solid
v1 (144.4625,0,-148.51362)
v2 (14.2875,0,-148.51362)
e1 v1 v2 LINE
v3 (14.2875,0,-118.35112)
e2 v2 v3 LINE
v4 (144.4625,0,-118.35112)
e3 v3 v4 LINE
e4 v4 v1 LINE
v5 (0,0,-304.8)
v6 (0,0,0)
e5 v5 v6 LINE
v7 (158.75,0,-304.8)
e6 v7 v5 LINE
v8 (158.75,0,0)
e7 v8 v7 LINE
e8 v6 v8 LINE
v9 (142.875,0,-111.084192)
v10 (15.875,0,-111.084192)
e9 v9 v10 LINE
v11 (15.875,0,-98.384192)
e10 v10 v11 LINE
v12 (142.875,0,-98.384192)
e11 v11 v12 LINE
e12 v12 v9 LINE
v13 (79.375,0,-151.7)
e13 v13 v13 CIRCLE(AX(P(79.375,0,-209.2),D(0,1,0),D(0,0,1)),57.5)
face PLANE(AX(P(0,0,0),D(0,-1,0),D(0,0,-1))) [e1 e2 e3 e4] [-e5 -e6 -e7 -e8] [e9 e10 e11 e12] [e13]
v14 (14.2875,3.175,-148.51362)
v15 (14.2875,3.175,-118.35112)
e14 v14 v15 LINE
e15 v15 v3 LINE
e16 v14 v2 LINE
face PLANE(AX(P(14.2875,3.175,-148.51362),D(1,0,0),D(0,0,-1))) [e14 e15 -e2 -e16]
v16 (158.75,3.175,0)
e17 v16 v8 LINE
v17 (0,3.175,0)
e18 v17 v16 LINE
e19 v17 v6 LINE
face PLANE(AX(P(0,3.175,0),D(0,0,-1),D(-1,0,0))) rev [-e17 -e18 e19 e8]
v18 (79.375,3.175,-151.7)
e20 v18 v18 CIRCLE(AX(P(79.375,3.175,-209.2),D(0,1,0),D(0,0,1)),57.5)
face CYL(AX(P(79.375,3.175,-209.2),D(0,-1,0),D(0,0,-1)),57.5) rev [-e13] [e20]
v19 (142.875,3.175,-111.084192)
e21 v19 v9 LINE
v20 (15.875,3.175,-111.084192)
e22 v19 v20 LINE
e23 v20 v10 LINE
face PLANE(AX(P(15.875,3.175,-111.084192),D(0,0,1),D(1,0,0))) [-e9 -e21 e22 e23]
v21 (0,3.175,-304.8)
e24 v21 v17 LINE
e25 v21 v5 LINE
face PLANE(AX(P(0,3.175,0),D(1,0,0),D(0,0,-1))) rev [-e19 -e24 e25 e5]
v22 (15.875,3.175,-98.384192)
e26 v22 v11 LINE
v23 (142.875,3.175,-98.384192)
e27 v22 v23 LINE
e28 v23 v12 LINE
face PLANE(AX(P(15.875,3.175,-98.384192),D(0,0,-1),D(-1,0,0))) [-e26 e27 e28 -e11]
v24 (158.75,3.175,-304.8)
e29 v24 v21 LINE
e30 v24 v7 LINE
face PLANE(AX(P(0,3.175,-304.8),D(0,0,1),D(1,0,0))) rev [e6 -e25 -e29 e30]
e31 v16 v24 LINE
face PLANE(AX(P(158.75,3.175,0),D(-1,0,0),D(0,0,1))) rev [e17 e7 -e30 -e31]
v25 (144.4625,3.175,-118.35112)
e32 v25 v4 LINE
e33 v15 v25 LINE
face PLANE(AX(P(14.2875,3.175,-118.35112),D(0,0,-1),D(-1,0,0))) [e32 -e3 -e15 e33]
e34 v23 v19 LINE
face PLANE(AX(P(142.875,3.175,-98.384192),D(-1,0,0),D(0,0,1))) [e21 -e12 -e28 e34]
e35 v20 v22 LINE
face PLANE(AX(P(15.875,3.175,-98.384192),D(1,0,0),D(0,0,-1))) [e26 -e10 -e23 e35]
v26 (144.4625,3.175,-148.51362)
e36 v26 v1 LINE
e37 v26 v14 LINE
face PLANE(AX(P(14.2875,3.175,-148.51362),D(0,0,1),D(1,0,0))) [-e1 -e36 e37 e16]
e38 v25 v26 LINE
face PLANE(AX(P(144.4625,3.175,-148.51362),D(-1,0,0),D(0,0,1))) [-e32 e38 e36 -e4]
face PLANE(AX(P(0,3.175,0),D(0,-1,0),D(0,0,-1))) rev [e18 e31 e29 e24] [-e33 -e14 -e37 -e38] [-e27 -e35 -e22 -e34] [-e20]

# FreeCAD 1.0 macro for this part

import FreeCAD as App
import Part
import Sketcher
from FreeCAD import Vector
Q = App.Units.Quantity

doc = App.newDocument("Part")
body = doc.addObject("PartDesign::Body", "Body")

# Sketch on XZ plane
sketch1 = doc.addObject("Sketcher::SketchObject", "Sketch")
body.addObject(sketch1)
sketch1.AttachmentSupport = (doc.XZ_Plane, [""])
sketch1.MapMode = "FlatFace"
sketch1.addGeometry(Part.LineSegment(Vector(0, -304.8, 0), Vector(0, 0, 0)), False)
sketch1.addGeometry(Part.LineSegment(Vector(0, 0, 0), Vector(158.75, 0, 0)), False)
sketch1.addGeometry(Part.LineSegment(Vector(158.75, 0, 0), Vector(158.75, -304.8, 0)), False)
sketch1.addGeometry(Part.LineSegment(Vector(158.75, -304.8, 0), Vector(0, -304.8, 0)), False)
sketch1.addGeometry(Part.LineSegment(Vector(142.875, -98.384192, 0), Vector(15.875, -98.384192, 0)), False)
sketch1.addGeometry(Part.LineSegment(Vector(15.875, -98.384192, 0), Vector(15.875, -111.084192, 0)), False)
sketch1.addGeometry(Part.LineSegment(Vector(15.875, -111.084192, 0), Vector(142.875, -111.084192, 0)), False)
sketch1.addGeometry(Part.LineSegment(Vector(142.875, -111.084192, 0), Vector(142.875, -98.384192, 0)), False)
sketch1.addGeometry(Part.LineSegment(Vector(144.4625, -118.35112, 0), Vector(14.2875, -118.35112, 0)), False)
sketch1.addGeometry(Part.LineSegment(Vector(14.2875, -118.35112, 0), Vector(14.2875, -148.51362, 0)), False)
sketch1.addGeometry(Part.LineSegment(Vector(14.2875, -148.51362, 0), Vector(144.4625, -148.51362, 0)), False)
sketch1.addGeometry(Part.LineSegment(Vector(144.4625, -148.51362, 0), Vector(144.4625, -118.35112, 0)), False)
sketch1.addGeometry(Part.Circle(Vector(79.375, -209.2, 0), Vector(0, 0, 1), 57.5), False)
sketch1.addConstraint(Sketcher.Constraint("Coincident", 0, 2, 1, 1))
sketch1.addConstraint(Sketcher.Constraint("Coincident", 1, 2, 2, 1))
sketch1.addConstraint(Sketcher.Constraint("Coincident", 2, 2, 3, 1))
sketch1.addConstraint(Sketcher.Constraint("Coincident", 3, 2, 0, 1))
sketch1.addConstraint(Sketcher.Constraint("Coincident", 4, 2, 5, 1))
sketch1.addConstraint(Sketcher.Constraint("Coincident", 5, 2, 6, 1))
sketch1.addConstraint(Sketcher.Constraint("Coincident", 6, 2, 7, 1))
sketch1.addConstraint(Sketcher.Constraint("Coincident", 7, 2, 4, 1))
sketch1.addConstraint(Sketcher.Constraint("Coincident", 8, 2, 9, 1))
sketch1.addConstraint(Sketcher.Constraint("Coincident", 9, 2, 10, 1))
sketch1.addConstraint(Sketcher.Constraint("Coincident", 10, 2, 11, 1))
sketch1.addConstraint(Sketcher.Constraint("Coincident", 11, 2, 8, 1))
sketch1.addConstraint(Sketcher.Constraint("Vertical", 0))
sketch1.addConstraint(Sketcher.Constraint("Horizontal", 1))
sketch1.addConstraint(Sketcher.Constraint("Vertical", 2))
sketch1.addConstraint(Sketcher.Constraint("Horizontal", 3))
sketch1.addConstraint(Sketcher.Constraint("Horizontal", 4))
sketch1.addConstraint(Sketcher.Constraint("Vertical", 5))
sketch1.addConstraint(Sketcher.Constraint("Horizontal", 6))
sketch1.addConstraint(Sketcher.Constraint("Vertical", 7))
sketch1.addConstraint(Sketcher.Constraint("Horizontal", 8))
sketch1.addConstraint(Sketcher.Constraint("Vertical", 9))
sketch1.addConstraint(Sketcher.Constraint("Horizontal", 10))
sketch1.addConstraint(Sketcher.Constraint("Vertical", 11))
sketch1.addConstraint(Sketcher.Constraint("Coincident", 0, 2, -1, 1))
sketch1.addConstraint(Sketcher.Constraint("DistanceX", 4, 2, 4, 1, Q("5 in")))
sketch1.addConstraint(Sketcher.Constraint("DistanceY", 0, 1, 0, 2, Q("12 in")))
sketch1.addConstraint(Sketcher.Constraint("DistanceY", 5, 2, 5, 1, Q("0.5 in")))
sketch1.addConstraint(Sketcher.Constraint("DistanceX", 1, 1, 1, 2, Q("6.25 in")))
sketch1.addConstraint(Sketcher.Constraint("DistanceX", 4, 2, 12, 3, Q("2.5 in")))
sketch1.addConstraint(Sketcher.Constraint("Diameter", 12, 115.0))
sketch1.addConstraint(Sketcher.Constraint("DistanceX", 8, 2, 8, 1, Q("5.125 in")))
sketch1.addConstraint(Sketcher.Constraint("DistanceY", 9, 2, 9, 1, Q("1.1875 in")))
sketch1.addConstraint(Sketcher.Constraint("DistanceX", -1, 1, 12, 3, Q("3.125 in")))
sketch1.addConstraint(Sketcher.Constraint("DistanceX", -1, 1, 8, 2, Q("0.5625 in")))
sketch1.addConstraint(Sketcher.Constraint("DistanceY", 12, 3, -1, 1, 209.2))
sketch1.addConstraint(Sketcher.Constraint("DistanceY", 8, 2, -1, 1, 118.35112))
sketch1.addConstraint(Sketcher.Constraint("DistanceY", 4, 2, -1, 1, 98.384192))
pad1 = doc.addObject("PartDesign::Pad", "Pad")
body.addObject(pad1)
pad1.Profile = sketch1
pad1.Length = Q("0.125 in")
pad1.Reversed = True

doc.recompute()
